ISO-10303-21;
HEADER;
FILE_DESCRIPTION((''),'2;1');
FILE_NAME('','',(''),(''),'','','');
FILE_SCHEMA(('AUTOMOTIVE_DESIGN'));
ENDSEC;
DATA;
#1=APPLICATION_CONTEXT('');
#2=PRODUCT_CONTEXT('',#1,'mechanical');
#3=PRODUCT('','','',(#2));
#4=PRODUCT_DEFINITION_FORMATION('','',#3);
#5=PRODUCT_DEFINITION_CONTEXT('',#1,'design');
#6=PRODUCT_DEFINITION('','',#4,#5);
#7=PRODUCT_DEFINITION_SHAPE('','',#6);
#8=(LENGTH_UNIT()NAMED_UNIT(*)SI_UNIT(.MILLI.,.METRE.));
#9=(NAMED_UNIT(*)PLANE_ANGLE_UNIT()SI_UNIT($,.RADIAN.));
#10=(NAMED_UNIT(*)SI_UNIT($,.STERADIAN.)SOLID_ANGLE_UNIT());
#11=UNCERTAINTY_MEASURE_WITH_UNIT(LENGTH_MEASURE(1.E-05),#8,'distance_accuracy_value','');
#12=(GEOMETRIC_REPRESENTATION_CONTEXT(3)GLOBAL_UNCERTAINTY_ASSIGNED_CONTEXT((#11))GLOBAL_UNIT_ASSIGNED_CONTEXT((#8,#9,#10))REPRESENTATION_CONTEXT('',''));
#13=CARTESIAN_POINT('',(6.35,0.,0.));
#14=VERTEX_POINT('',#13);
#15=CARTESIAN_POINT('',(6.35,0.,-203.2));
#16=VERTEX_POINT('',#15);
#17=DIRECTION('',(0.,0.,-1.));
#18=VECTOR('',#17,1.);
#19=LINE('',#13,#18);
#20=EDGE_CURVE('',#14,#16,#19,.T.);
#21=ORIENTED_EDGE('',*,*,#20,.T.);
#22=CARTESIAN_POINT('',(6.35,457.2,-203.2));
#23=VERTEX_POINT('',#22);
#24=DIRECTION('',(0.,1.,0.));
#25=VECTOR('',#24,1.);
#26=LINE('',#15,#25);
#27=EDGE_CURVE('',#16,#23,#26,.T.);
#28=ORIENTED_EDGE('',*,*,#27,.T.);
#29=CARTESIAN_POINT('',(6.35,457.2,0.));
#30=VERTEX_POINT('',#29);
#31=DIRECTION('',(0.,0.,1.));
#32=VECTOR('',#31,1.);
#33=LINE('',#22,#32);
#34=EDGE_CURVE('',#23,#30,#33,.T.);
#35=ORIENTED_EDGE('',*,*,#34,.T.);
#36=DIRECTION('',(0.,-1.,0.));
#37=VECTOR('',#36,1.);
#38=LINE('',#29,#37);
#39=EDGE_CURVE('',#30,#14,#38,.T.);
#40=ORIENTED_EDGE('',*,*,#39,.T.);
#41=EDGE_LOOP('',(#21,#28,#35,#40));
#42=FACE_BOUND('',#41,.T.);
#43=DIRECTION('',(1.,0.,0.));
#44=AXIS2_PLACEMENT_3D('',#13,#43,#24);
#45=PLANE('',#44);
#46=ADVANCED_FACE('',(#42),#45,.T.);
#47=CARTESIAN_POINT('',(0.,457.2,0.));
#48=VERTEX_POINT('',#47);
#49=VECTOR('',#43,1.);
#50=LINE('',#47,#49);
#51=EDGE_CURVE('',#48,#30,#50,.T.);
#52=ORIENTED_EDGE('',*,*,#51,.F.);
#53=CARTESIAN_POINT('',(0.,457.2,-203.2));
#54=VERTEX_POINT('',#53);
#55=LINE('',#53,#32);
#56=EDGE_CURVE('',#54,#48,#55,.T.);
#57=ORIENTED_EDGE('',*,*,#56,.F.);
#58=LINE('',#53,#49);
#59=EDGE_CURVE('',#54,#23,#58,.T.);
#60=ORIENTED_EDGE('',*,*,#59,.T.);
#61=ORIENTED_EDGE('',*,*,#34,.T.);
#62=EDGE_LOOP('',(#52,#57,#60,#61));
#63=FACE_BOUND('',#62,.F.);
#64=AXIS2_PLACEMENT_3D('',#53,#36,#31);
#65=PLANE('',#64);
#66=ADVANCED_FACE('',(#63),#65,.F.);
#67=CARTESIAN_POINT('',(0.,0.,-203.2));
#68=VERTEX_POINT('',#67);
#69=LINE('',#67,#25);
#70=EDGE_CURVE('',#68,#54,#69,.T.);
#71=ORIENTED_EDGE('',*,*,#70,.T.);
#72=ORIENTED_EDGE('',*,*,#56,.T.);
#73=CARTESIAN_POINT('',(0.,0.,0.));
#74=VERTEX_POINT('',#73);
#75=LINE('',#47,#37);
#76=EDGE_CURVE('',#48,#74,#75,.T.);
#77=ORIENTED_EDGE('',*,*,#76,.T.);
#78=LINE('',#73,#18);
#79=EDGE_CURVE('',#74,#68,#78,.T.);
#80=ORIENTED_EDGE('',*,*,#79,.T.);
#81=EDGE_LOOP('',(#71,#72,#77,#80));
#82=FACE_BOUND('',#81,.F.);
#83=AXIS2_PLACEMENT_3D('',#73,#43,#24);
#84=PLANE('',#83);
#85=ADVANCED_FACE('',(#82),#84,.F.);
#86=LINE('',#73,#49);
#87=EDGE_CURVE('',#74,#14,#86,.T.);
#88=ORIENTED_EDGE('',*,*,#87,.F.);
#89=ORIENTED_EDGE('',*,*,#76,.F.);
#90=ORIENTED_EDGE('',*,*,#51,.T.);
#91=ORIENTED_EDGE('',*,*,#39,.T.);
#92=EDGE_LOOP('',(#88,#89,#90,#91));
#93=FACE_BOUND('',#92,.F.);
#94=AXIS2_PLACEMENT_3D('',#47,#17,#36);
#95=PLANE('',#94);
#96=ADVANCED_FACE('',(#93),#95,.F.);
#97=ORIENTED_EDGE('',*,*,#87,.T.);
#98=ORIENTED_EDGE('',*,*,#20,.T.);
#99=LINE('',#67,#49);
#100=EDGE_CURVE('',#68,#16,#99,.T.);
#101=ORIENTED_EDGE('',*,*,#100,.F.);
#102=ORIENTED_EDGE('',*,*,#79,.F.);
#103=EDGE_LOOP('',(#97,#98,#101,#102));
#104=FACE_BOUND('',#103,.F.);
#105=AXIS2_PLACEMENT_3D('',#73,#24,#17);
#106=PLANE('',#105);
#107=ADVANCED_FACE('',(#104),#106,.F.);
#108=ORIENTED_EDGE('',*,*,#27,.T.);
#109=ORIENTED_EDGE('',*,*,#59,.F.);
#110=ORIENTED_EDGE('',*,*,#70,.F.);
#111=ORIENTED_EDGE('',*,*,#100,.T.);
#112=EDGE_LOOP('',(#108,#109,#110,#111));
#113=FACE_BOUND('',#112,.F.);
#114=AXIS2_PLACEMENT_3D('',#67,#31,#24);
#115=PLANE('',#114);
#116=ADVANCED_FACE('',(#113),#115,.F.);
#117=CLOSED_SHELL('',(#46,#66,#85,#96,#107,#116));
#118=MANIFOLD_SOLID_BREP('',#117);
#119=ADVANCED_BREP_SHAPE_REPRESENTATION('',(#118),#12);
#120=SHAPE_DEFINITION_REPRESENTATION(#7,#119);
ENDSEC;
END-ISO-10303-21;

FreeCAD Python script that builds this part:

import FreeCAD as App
import Part
import Sketcher

V = App.Vector
Q = App.Units.Quantity

doc = App.newDocument("Part")
body = doc.addObject("PartDesign::Body", "Body")

sketch1 = body.newObject("Sketcher::SketchObject", "Sketch")
sketch1.AttachmentSupport = (doc.getObject("YZ_Plane"), [""])
sketch1.MapMode = "FlatFace"
sketch1.addGeometry([
    Part.LineSegment(V(457, 0, 0), V(0, 0, 0)),
    Part.LineSegment(V(0, 0, 0), V(0, -203, 0)),
    Part.LineSegment(V(0, -203, 0), V(457, -203, 0)),
    Part.LineSegment(V(457, -203, 0), V(457, 0, 0)),
], False)
sketch1.addConstraint([
    Sketcher.Constraint("Coincident", 0, 2, 1, 1),
    Sketcher.Constraint("Coincident", 1, 2, 2, 1),
    Sketcher.Constraint("Coincident", 2, 2, 3, 1),
    Sketcher.Constraint("Coincident", 3, 2, 0, 1),
    Sketcher.Constraint("Horizontal", 0),
    Sketcher.Constraint("Vertical", 1),
    Sketcher.Constraint("Horizontal", 2),
    Sketcher.Constraint("Vertical", 3),
    Sketcher.Constraint("Coincident", 0, 2, -1, 1),
    Sketcher.Constraint("DistanceX", 0, 2, 0, 1, Q("18 in")),
    Sketcher.Constraint("DistanceY", 1, 2, 1, 1, Q("8 in")),
])
pad1 = body.newObject("PartDesign::Pad", "Pad")
pad1.Profile = sketch1
pad1.Length = Q("0.25 in")

doc.recompute()
